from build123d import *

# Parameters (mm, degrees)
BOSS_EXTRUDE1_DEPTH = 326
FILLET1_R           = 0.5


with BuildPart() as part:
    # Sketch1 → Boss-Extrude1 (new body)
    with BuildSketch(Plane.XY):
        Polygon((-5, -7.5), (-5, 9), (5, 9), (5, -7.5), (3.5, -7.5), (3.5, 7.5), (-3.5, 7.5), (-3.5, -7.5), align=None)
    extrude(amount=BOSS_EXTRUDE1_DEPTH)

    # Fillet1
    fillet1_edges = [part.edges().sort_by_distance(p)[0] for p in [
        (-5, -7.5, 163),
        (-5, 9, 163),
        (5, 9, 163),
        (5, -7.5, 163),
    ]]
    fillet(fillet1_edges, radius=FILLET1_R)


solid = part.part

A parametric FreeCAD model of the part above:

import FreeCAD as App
import Part
import Sketcher

V = App.Vector


def edges_at(feature, points):
    """Names of the edges that pass closest to the given points."""
    edges = feature.Shape.Edges
    near = lambda p: min(range(len(edges)), key=lambda i: edges[i].distToShape(Part.Vertex(*p))[0])
    return sorted({f"Edge{near(p) + 1}" for p in points})

doc = App.newDocument("Part")
body = doc.addObject("PartDesign::Body", "Body")

# Sketch on XY plane
sketch1 = doc.addObject("Sketcher::SketchObject", "Sketch")
body.addObject(sketch1)
sketch1.AttachmentSupport = (doc.XY_Plane, [""])
sketch1.MapMode = "FlatFace"
sketch1.addGeometry(Part.LineSegment(V(-5, 9, 0), V(-5, -7.5, 0)), False)
sketch1.addGeometry(Part.LineSegment(V(-5, -7.5, 0), V(-3.5, -7.5, 0)), False)
sketch1.addGeometry(Part.LineSegment(V(-3.5, -7.5, 0), V(-3.5, 7.5, 0)), False)
sketch1.addGeometry(Part.LineSegment(V(-3.5, 7.5, 0), V(3.5, 7.5, 0)), False)
sketch1.addGeometry(Part.LineSegment(V(3.5, 7.5, 0), V(3.5, -7.5, 0)), False)
sketch1.addGeometry(Part.LineSegment(V(3.5, -7.5, 0), V(5, -7.5, 0)), False)
sketch1.addGeometry(Part.LineSegment(V(5, -7.5, 0), V(5, 9, 0)), False)
sketch1.addGeometry(Part.LineSegment(V(5, 9, 0), V(-5, 9, 0)), False)
sketch1.addConstraint(Sketcher.Constraint("Coincident", 0, 2, 1, 1))
sketch1.addConstraint(Sketcher.Constraint("Coincident", 1, 2, 2, 1))
sketch1.addConstraint(Sketcher.Constraint("Coincident", 2, 2, 3, 1))
sketch1.addConstraint(Sketcher.Constraint("Coincident", 3, 2, 4, 1))
sketch1.addConstraint(Sketcher.Constraint("Coincident", 4, 2, 5, 1))
sketch1.addConstraint(Sketcher.Constraint("Coincident", 5, 2, 6, 1))
sketch1.addConstraint(Sketcher.Constraint("Coincident", 6, 2, 7, 1))
sketch1.addConstraint(Sketcher.Constraint("Coincident", 7, 2, 0, 1))
sketch1.addConstraint(Sketcher.Constraint("Vertical", 0))
sketch1.addConstraint(Sketcher.Constraint("Horizontal", 1))
sketch1.addConstraint(Sketcher.Constraint("Vertical", 2))
sketch1.addConstraint(Sketcher.Constraint("Horizontal", 3))
sketch1.addConstraint(Sketcher.Constraint("Vertical", 4))
sketch1.addConstraint(Sketcher.Constraint("Horizontal", 5))
sketch1.addConstraint(Sketcher.Constraint("Vertical", 6))
sketch1.addConstraint(Sketcher.Constraint("Horizontal", 7))
sketch1.addConstraint(Sketcher.Constraint("Symmetric", 1, 2, 3, 2, -1, 1))
sketch1.addConstraint(Sketcher.Constraint("Symmetric", 0, 2, 5, 2, -2))
sketch1.addConstraint(Sketcher.Constraint("DistanceX", 3, 1, 3, 2, 7.0))
sketch1.addConstraint(Sketcher.Constraint("DistanceX", 7, 2, 7, 1, 10.0))
sketch1.addConstraint(Sketcher.Constraint("DistanceY", 2, 1, 2, 2, 15.0))
sketch1.addConstraint(Sketcher.Constraint("DistanceY", 0, 2, 0, 1, 16.5))
pad1 = doc.addObject("PartDesign::Pad", "Pad")
body.addObject(pad1)
pad1.Profile = sketch1
pad1.Length = 326
doc.recompute()

fillet = doc.addObject("PartDesign::Fillet", "Fillet")
body.addObject(fillet)
fillet.Base = (pad1, edges_at(pad1, [
    (-5, -7.5, 163),
    (-5, 9, 163),
    (5, 9, 163),
    (5, -7.5, 163),
]))
fillet.Radius = 0.5

doc.recompute()
